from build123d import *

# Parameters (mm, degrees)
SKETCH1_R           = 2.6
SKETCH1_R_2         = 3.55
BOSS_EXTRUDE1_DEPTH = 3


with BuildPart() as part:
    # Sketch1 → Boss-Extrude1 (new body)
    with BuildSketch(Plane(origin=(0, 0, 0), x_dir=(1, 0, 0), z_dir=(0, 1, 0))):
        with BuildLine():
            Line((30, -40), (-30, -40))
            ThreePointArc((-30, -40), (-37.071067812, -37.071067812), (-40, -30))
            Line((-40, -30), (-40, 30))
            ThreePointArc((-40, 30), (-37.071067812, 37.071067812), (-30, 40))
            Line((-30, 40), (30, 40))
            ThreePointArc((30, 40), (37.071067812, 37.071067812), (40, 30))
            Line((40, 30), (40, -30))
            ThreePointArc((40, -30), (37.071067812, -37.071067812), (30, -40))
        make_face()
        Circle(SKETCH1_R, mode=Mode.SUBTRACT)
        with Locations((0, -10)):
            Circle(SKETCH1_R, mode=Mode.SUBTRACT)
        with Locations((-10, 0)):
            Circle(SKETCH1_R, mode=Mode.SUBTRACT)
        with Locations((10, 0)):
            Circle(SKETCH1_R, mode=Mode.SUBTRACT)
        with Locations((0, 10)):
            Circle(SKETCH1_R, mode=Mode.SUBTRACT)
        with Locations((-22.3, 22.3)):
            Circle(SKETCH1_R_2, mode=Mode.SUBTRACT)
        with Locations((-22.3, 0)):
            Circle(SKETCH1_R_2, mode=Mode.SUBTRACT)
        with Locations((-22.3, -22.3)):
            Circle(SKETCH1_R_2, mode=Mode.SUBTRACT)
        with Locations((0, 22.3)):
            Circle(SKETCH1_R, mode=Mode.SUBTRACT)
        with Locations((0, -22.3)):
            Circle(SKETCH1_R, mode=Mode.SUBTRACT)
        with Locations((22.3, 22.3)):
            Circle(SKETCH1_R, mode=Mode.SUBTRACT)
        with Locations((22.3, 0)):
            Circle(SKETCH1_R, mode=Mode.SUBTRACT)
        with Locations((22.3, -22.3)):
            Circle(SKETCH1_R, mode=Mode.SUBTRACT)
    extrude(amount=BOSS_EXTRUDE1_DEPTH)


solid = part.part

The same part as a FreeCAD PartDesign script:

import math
import FreeCAD as App
import Part
import Sketcher
from FreeCAD import Vector
Q = App.Units.Quantity

doc = App.newDocument("Part")
body = doc.addObject("PartDesign::Body", "Body")

# Sketch on XZ plane
sketch1 = body.newObject("Sketcher::SketchObject", "Sketch")
sketch1.AttachmentSupport = (doc.getObject("XZ_Plane"), [""])
sketch1.MapMode = "FlatFace"
sketch1.addGeometry(Part.LineSegment(Vector(-30, 40, 0), Vector(30, 40, 0)), False)
sketch1.addGeometry(Part.ArcOfCircle(Part.Circle(Vector(30, 30, 0), Vector(0, 0, 1), 10), math.radians(0), math.radians(90)), False)
sketch1.addGeometry(Part.LineSegment(Vector(40, 30, 0), Vector(40, -30, 0)), False)
sketch1.addGeometry(Part.ArcOfCircle(Part.Circle(Vector(30, -30, 0), Vector(0, 0, 1), 10), math.radians(-90), math.radians(0)), False)
sketch1.addGeometry(Part.LineSegment(Vector(30, -40, 0), Vector(-30, -40, 0)), False)
sketch1.addGeometry(Part.ArcOfCircle(Part.Circle(Vector(-30, -30, 0), Vector(0, 0, 1), 10), math.radians(180), math.radians(270)), False)
sketch1.addGeometry(Part.LineSegment(Vector(-40, -30, 0), Vector(-40, 30, 0)), False)
sketch1.addGeometry(Part.ArcOfCircle(Part.Circle(Vector(-30, 30, 0), Vector(0, 0, 1), 10), math.radians(90), math.radians(180)), False)
sketch1.addGeometry(Part.Circle(Vector(22.3, 22.3, 0), Vector(0, 0, 1), 2.6), False)
sketch1.addGeometry(Part.Circle(Vector(0, 22.3, 0), Vector(0, 0, 1), 2.6), False)
sketch1.addGeometry(Part.Circle(Vector(0, 10, 0), Vector(0, 0, 1), 2.6), False)
sketch1.addGeometry(Part.Circle(Vector(-22.3, 22.3, 0), Vector(0, 0, 1), 3.55), False)
sketch1.addGeometry(Part.Circle(Vector(22.3, 0, 0), Vector(0, 0, 1), 2.6), False)
sketch1.addGeometry(Part.Circle(Vector(10, 0, 0), Vector(0, 0, 1), 2.6), False)
sketch1.addGeometry(Part.Circle(Vector(0, 0, 0), Vector(0, 0, 1), 2.6), False)
sketch1.addGeometry(Part.Circle(Vector(0, -10, 0), Vector(0, 0, 1), 2.6), False)
sketch1.addGeometry(Part.Circle(Vector(22.3, -22.3, 0), Vector(0, 0, 1), 2.6), False)
sketch1.addGeometry(Part.Circle(Vector(0, -22.3, 0), Vector(0, 0, 1), 2.6), False)
sketch1.addGeometry(Part.Circle(Vector(-10, 0, 0), Vector(0, 0, 1), 2.6), False)
sketch1.addGeometry(Part.Circle(Vector(-22.3, 0, 0), Vector(0, 0, 1), 3.55), False)
sketch1.addGeometry(Part.Circle(Vector(-22.3, -22.3, 0), Vector(0, 0, 1), 3.55), False)
sketch1.addConstraint(Sketcher.Constraint("Tangent", 0, 2, 1, 2))
sketch1.addConstraint(Sketcher.Constraint("Tangent", 1, 1, 2, 1))
sketch1.addConstraint(Sketcher.Constraint("Tangent", 2, 2, 3, 2))
sketch1.addConstraint(Sketcher.Constraint("Tangent", 3, 1, 4, 1))
sketch1.addConstraint(Sketcher.Constraint("Tangent", 4, 2, 5, 2))
sketch1.addConstraint(Sketcher.Constraint("Tangent", 5, 1, 6, 1))
sketch1.addConstraint(Sketcher.Constraint("Tangent", 6, 2, 7, 2))
sketch1.addConstraint(Sketcher.Constraint("Tangent", 7, 1, 0, 1))
sketch1.addConstraint(Sketcher.Constraint("Horizontal", 0))
sketch1.addConstraint(Sketcher.Constraint("Vertical", 2))
sketch1.addConstraint(Sketcher.Constraint("Horizontal", 4))
sketch1.addConstraint(Sketcher.Constraint("Vertical", 6))
sketch1.addConstraint(Sketcher.Constraint("Coincident", 14, 3, -1, 1))
sketch1.addConstraint(Sketcher.Constraint("Equal", 1, 3))
sketch1.addConstraint(Sketcher.Constraint("Equal", 3, 5))
sketch1.addConstraint(Sketcher.Constraint("Equal", 5, 7))
sketch1.addConstraint(Sketcher.Constraint("Equal", 8, 9))
sketch1.addConstraint(Sketcher.Constraint("Equal", 9, 10))
sketch1.addConstraint(Sketcher.Constraint("Equal", 10, 12))
sketch1.addConstraint(Sketcher.Constraint("Equal", 12, 13))
sketch1.addConstraint(Sketcher.Constraint("Equal", 13, 14))
sketch1.addConstraint(Sketcher.Constraint("Equal", 14, 15))
sketch1.addConstraint(Sketcher.Constraint("Equal", 15, 16))
sketch1.addConstraint(Sketcher.Constraint("Equal", 16, 17))
sketch1.addConstraint(Sketcher.Constraint("Equal", 17, 18))
sketch1.addConstraint(Sketcher.Constraint("Equal", 11, 19))
sketch1.addConstraint(Sketcher.Constraint("Equal", 19, 20))
sketch1.addConstraint(Sketcher.Constraint("Symmetric", 1, 3, 5, 3, -1, 1))
sketch1.addConstraint(Sketcher.Constraint("Symmetric", 10, 3, 15, 3, -1, 1))
sketch1.addConstraint(Sketcher.Constraint("Symmetric", 11, 3, 16, 3, -1, 1))
sketch1.addConstraint(Sketcher.Constraint("Symmetric", 9, 3, 17, 3, -1, 1))
sketch1.addConstraint(Sketcher.Constraint("Symmetric", 13, 3, 18, 3, -1, 1))
sketch1.addConstraint(Sketcher.Constraint("Symmetric", 12, 3, 19, 3, -1, 1))
sketch1.addConstraint(Sketcher.Constraint("Symmetric", 8, 3, 20, 3, -1, 1))
sketch1.addConstraint(Sketcher.Constraint("Symmetric", 8, 3, 11, 3, -2))
sketch1.addConstraint(Sketcher.Constraint("PointOnObject", 9, 3, -2))
sketch1.addConstraint(Sketcher.Constraint("PointOnObject", 10, 3, -2))
sketch1.addConstraint(Sketcher.Constraint("PointOnObject", 12, 3, -1))
sketch1.addConstraint(Sketcher.Constraint("PointOnObject", 13, 3, -1))
sketch1.addConstraint(Sketcher.Constraint("Horizontal", 8, 3, 9, 3))
sketch1.addConstraint(Sketcher.Constraint("Vertical", 8, 3, 12, 3))
sketch1.addConstraint(Sketcher.Constraint("Equal", 4, 2))
sketch1.addConstraint(Sketcher.Constraint("Radius", 1, Q("10 mm")))
sketch1.addConstraint(Sketcher.Constraint("Diameter", 8, Q("5.2 mm")))
sketch1.addConstraint(Sketcher.Constraint("Diameter", 11, Q("7.1 mm")))
sketch1.addConstraint(Sketcher.Constraint("DistanceX", 0, 1, 0, 2, Q("60 mm")))
sketch1.addConstraint(Sketcher.Constraint("DistanceY", -1, 1, 10, 3, Q("10 mm")))
sketch1.addConstraint(Sketcher.Constraint("DistanceX", -1, 1, 13, 3, Q("10 mm")))
sketch1.addConstraint(Sketcher.Constraint("DistanceX", -1, 1, 8, 3, Q("22.3 mm")))
sketch1.addConstraint(Sketcher.Constraint("DistanceY", -1, 1, 8, 3, Q("22.3 mm")))
pad1 = body.newObject("PartDesign::Pad", "Pad")
pad1.Profile = sketch1
pad1.Length = 3
pad1.Reversed = True

doc.recompute()
